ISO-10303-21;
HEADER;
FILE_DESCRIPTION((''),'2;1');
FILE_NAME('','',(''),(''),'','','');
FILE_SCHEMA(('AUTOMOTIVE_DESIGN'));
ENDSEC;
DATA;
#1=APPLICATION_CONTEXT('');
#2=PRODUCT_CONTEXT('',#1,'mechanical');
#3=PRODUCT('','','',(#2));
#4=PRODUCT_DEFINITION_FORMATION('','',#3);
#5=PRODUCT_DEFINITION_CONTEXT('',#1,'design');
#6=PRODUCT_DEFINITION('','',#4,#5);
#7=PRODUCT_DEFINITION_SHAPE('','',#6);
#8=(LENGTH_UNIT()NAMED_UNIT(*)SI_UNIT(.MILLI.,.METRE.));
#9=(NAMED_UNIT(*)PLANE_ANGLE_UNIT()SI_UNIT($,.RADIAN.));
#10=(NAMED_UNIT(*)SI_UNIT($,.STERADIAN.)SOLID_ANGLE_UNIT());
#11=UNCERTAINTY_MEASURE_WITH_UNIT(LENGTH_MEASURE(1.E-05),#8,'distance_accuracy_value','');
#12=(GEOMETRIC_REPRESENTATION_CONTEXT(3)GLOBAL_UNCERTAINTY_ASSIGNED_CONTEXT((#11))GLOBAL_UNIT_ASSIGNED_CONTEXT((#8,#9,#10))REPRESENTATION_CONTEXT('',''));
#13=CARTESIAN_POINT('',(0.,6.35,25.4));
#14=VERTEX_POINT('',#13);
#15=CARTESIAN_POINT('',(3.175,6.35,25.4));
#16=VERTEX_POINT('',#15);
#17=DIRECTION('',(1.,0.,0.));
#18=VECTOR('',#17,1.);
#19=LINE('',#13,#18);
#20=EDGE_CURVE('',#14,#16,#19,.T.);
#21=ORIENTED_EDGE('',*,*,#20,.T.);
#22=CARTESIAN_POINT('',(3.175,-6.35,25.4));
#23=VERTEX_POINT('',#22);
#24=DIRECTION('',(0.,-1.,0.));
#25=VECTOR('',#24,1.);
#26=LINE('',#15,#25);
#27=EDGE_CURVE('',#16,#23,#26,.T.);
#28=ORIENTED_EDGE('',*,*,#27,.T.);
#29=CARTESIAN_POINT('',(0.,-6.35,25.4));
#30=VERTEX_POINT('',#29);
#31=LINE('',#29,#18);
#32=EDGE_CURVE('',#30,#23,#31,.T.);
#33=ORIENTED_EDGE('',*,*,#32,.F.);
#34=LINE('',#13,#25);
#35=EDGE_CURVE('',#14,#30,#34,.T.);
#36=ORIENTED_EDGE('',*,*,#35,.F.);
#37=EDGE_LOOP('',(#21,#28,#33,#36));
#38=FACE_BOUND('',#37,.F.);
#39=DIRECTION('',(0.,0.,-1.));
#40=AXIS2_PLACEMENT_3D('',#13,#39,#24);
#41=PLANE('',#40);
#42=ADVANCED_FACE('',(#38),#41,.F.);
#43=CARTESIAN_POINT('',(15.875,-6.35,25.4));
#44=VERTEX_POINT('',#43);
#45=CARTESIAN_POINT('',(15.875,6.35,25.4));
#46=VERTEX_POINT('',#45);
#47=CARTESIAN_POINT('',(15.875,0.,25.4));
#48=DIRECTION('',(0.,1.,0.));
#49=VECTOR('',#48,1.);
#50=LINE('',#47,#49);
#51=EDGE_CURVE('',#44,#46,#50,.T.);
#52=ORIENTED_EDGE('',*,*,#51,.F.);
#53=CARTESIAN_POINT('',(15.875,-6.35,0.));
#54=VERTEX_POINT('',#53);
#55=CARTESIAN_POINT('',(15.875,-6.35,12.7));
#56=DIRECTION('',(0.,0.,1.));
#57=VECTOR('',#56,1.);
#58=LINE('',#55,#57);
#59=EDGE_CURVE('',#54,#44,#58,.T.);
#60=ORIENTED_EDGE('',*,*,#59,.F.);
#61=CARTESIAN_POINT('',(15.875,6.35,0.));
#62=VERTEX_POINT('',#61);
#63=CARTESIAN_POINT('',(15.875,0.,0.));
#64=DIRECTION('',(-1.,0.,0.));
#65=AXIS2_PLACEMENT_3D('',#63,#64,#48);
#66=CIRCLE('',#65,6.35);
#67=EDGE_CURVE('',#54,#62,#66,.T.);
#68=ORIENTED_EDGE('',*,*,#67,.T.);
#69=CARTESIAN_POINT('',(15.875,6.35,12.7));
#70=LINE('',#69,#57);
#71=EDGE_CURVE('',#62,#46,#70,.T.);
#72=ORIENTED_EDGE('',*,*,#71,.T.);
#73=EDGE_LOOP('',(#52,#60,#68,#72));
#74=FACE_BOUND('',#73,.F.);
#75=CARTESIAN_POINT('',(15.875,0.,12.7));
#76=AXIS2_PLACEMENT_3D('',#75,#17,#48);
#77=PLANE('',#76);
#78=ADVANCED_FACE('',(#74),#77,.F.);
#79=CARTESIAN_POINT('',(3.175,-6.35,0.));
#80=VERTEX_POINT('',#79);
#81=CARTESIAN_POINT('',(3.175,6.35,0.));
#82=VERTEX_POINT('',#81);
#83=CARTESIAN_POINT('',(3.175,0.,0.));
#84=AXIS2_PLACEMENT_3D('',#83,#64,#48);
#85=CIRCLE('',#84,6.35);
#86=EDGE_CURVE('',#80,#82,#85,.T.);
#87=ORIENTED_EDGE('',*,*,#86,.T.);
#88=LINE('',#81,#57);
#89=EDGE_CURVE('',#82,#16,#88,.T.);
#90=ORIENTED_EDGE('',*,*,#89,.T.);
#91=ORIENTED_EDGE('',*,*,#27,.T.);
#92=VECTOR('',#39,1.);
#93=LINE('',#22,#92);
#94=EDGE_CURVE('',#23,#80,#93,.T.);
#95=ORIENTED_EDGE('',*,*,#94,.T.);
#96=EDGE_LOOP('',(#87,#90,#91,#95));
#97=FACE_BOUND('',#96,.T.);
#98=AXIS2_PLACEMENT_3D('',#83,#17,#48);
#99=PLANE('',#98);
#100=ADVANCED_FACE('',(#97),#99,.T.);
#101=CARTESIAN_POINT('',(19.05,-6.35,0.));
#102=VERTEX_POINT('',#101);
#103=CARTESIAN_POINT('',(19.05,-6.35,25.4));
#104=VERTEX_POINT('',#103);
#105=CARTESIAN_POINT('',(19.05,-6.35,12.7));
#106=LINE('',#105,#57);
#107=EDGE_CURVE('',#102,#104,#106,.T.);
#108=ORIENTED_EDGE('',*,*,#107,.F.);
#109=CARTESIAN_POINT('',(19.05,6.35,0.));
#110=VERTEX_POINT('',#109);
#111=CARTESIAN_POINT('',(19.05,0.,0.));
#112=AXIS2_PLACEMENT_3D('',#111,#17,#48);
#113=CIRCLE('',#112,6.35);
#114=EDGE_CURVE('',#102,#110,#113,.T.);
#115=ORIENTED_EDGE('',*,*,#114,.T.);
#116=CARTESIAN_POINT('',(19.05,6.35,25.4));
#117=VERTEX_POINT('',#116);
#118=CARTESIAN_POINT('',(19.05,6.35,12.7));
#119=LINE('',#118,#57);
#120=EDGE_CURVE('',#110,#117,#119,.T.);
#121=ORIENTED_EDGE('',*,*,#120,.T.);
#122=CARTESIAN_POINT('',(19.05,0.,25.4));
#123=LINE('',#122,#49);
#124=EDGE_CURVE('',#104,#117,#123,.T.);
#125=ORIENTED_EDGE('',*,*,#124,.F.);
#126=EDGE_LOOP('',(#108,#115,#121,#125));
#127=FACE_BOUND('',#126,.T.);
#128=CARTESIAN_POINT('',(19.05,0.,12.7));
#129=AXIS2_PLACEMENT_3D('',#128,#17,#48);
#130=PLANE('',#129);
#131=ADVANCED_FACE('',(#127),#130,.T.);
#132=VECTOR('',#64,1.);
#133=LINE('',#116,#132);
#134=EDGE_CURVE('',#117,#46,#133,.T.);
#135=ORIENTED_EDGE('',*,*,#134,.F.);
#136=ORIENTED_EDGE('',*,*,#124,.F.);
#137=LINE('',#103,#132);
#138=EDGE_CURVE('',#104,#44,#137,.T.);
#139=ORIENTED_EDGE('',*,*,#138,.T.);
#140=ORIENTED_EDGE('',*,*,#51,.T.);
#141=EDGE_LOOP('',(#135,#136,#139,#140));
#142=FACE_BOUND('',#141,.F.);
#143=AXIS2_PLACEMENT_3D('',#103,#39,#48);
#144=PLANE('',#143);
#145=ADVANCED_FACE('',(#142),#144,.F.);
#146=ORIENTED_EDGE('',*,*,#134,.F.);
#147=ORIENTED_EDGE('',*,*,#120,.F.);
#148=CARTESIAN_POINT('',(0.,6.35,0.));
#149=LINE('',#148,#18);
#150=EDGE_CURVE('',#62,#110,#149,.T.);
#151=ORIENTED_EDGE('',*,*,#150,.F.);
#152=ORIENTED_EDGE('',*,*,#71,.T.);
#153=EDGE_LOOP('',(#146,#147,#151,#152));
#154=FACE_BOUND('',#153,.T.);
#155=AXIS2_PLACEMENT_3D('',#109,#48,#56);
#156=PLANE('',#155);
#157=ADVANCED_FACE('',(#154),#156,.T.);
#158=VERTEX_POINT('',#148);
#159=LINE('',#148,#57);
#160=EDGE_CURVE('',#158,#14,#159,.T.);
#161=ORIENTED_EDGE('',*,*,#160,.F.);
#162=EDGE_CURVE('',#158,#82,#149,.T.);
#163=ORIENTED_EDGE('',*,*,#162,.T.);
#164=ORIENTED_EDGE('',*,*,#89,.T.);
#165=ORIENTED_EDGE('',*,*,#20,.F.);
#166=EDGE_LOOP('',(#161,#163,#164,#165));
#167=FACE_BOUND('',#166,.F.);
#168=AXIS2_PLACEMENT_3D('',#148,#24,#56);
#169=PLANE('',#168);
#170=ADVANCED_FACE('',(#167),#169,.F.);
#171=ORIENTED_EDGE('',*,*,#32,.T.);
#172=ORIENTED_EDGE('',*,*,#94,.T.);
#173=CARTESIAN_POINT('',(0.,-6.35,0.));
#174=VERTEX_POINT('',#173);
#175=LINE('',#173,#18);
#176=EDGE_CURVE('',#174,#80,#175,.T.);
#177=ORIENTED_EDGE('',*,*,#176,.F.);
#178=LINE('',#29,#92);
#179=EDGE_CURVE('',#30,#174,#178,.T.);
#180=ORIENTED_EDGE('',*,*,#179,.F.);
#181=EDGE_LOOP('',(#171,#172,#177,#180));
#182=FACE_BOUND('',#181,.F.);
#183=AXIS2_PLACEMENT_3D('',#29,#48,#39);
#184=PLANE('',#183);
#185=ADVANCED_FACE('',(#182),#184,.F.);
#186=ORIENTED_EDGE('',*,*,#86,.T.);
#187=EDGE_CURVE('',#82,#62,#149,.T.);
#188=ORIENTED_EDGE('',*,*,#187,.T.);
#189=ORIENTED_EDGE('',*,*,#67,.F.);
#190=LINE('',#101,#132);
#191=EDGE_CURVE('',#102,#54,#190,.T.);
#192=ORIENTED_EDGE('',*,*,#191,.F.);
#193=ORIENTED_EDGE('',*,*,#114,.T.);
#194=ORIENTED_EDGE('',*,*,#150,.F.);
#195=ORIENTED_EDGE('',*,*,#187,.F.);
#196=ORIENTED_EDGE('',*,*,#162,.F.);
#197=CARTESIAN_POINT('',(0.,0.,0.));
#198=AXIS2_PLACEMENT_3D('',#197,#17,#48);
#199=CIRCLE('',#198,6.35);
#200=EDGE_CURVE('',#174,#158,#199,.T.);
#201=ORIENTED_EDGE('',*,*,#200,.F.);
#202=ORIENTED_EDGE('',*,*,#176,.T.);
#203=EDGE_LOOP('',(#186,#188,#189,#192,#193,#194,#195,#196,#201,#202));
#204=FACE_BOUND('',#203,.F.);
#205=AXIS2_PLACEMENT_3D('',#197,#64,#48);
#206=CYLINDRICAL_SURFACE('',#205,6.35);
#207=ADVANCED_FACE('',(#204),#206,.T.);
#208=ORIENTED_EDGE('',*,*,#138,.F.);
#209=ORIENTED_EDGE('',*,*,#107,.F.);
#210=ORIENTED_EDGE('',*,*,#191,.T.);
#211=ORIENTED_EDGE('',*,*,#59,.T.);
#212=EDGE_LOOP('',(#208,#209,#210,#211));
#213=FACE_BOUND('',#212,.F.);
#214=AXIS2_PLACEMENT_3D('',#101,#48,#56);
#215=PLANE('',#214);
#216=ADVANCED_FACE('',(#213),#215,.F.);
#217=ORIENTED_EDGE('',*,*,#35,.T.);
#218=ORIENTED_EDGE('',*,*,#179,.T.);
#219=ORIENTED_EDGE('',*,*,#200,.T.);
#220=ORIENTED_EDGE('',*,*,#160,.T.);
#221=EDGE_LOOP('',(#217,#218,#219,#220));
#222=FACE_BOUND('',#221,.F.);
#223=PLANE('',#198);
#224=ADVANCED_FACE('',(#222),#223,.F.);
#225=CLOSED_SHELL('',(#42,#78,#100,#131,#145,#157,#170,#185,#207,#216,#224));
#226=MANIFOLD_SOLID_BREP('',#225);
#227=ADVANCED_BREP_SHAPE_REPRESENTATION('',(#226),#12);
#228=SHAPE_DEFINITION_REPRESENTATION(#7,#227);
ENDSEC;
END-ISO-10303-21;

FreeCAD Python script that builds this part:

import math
import FreeCAD as App
import Part
import Sketcher
Q = App.Units.Quantity

doc = App.newDocument("Part")
body = doc.addObject("PartDesign::Body", "Body")

# Sketch on YZ plane
sketch1 = doc.addObject("Sketcher::SketchObject", "Sketch")
body.addObject(sketch1)
sketch1.AttachmentSupport = (doc.YZ_Plane, [""])
sketch1.MapMode = "FlatFace"
sketch1.addGeometry(Part.Circle(App.Vector(0, 0, 0), App.Vector(0, 0, 1), 6), False)
sketch1.addConstraint([
    Sketcher.Constraint("Coincident", 0, 3, -1, 1),
    Sketcher.Constraint("Diameter", 0, Q("0.5 in")),
])
pad1 = doc.addObject("PartDesign::Pad", "Pad")
body.addObject(pad1)
pad1.Profile = sketch1
pad1.Length = Q("0.75 in")

# Sketch on YZ plane
sketch2 = doc.addObject("Sketcher::SketchObject", "Sketch001")
body.addObject(sketch2)
sketch2.AttachmentSupport = (doc.YZ_Plane, [""])
sketch2.MapMode = "FlatFace"
sketch2.addGeometry([
    Part.ArcOfCircle(Part.Circle(App.Vector(0, 0, 0), App.Vector(0, 0, 1), 6), math.radians(180), math.radians(360)),
    Part.LineSegment(App.Vector(6, 0, 0), App.Vector(6, 25, 0)),
    Part.LineSegment(App.Vector(6, 25, 0), App.Vector(-6, 25, 0)),
    Part.LineSegment(App.Vector(-6, 25, 0), App.Vector(-6, 0, 0)),
], False)
sketch2.addConstraint([
    Sketcher.Constraint("Tangent", 0, 2, 1, 1),
    Sketcher.Constraint("Coincident", 1, 2, 2, 1),
    Sketcher.Constraint("Coincident", 2, 2, 3, 1),
    Sketcher.Constraint("Tangent", 3, 2, 0, 1),
    Sketcher.Constraint("Vertical", 1),
    Sketcher.Constraint("Horizontal", 2),
    Sketcher.Constraint("Vertical", 3),
    Sketcher.Constraint("Coincident", 0, 3, -1, 1),
    Sketcher.Constraint("DistanceY", 1, 1, 1, 2, Q("1 in")),
    Sketcher.Constraint("Radius", 0, Q("0.25 in")),
])
pad2 = doc.addObject("PartDesign::Pad", "Pad001")
body.addObject(pad2)
pad2.Profile = sketch2
pad2.Length = Q("0.125 in")

# Sketch on YZ plane
sketch3 = doc.addObject("Sketcher::SketchObject", "Sketch002")
body.addObject(sketch3)
sketch3.AttachmentSupport = (doc.YZ_Plane, [""])
sketch3.MapMode = "FlatFace"
sketch3.AttachmentOffset = App.Placement(App.Vector(0, 0, 0.75 * 25.4), App.Rotation())
sketch3.addGeometry([
    Part.LineSegment(App.Vector(-6, 25, 0), App.Vector(-6, 0, 0)),
    Part.LineSegment(App.Vector(-6, 0, 0), App.Vector(6, 0, 0)),
    Part.LineSegment(App.Vector(6, 0, 0), App.Vector(6, 25, 0)),
    Part.LineSegment(App.Vector(6, 25, 0), App.Vector(-6, 25, 0)),
], False)
sketch3.addConstraint([
    Sketcher.Constraint("Coincident", 0, 2, 1, 1),
    Sketcher.Constraint("Coincident", 1, 2, 2, 1),
    Sketcher.Constraint("Coincident", 2, 2, 3, 1),
    Sketcher.Constraint("Coincident", 3, 2, 0, 1),
    Sketcher.Constraint("Vertical", 0),
    Sketcher.Constraint("Horizontal", 1),
    Sketcher.Constraint("Vertical", 2),
    Sketcher.Constraint("Horizontal", 3),
    Sketcher.Constraint("Symmetric", 0, 2, 1, 2, -1, 1),
    Sketcher.Constraint("DistanceY", 0, 2, 0, 1, Q("1 in")),
    Sketcher.Constraint("DistanceX", 1, 1, 1, 2, Q("0.5 in")),
])
pad3 = doc.addObject("PartDesign::Pad", "Pad002")
body.addObject(pad3)
pad3.Profile = sketch3
pad3.Length = Q("0.125 in")
pad3.Reversed = True

doc.recompute()
